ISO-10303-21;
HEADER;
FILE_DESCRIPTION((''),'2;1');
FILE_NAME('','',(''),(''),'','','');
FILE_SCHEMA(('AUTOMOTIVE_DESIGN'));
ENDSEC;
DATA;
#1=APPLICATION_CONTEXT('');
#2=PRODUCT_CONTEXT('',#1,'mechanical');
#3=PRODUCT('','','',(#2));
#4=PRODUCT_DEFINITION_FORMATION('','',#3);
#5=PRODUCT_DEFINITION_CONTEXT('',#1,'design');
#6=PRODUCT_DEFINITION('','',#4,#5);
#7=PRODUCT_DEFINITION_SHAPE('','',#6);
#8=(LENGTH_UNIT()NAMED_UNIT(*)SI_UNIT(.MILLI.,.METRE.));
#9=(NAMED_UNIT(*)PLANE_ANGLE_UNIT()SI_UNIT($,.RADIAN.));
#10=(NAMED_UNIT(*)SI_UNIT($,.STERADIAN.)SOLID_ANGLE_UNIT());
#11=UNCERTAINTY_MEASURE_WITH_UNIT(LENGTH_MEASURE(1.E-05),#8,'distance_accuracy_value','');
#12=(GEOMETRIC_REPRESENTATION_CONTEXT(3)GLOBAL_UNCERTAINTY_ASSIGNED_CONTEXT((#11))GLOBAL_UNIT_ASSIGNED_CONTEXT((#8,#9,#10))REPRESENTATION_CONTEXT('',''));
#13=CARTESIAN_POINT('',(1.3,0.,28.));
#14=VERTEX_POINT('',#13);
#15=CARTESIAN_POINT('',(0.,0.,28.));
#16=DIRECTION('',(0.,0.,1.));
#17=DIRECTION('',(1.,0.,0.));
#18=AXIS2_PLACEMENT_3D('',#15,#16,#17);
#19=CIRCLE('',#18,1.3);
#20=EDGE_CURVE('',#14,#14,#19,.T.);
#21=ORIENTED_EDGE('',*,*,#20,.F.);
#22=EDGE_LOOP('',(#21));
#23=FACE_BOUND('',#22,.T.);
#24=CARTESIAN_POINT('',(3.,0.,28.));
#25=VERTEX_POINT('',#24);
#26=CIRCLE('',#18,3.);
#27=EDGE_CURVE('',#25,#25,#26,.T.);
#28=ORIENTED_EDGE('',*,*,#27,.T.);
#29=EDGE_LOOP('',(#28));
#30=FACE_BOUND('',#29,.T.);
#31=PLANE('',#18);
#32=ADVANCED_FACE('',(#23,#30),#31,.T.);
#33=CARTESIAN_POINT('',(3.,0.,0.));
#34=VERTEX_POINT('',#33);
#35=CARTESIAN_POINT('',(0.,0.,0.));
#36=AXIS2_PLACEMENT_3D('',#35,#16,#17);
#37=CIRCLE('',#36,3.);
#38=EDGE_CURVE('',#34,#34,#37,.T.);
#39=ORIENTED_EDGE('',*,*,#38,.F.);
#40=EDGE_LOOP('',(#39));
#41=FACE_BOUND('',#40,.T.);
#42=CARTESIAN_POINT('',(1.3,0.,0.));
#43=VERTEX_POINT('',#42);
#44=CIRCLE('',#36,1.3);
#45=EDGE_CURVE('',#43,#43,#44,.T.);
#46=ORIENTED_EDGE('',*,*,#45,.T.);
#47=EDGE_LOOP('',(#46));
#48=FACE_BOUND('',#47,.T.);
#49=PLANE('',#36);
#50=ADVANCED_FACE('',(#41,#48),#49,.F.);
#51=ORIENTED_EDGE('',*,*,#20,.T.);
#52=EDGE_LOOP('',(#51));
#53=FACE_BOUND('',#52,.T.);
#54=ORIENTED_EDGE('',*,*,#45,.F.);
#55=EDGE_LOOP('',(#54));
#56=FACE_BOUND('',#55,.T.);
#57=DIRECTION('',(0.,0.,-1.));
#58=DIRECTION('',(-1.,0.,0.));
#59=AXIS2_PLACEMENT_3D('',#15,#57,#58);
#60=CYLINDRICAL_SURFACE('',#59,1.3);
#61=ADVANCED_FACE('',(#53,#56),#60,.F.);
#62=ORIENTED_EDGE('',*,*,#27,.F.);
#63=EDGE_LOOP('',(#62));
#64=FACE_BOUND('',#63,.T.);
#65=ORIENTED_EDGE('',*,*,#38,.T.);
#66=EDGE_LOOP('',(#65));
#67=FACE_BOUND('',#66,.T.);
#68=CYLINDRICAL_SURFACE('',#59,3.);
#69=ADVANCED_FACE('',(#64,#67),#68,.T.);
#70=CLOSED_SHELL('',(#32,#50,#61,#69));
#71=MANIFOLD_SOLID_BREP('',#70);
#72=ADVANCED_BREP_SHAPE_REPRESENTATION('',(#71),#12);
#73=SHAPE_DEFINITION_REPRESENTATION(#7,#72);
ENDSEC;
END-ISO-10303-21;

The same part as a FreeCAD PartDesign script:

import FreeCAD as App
import Part
import Sketcher

doc = App.newDocument("Part")
params = doc.addObject("Spreadsheet::Sheet", "Params")
for row, (alias, value) in enumerate([
    ("sketch1_diameter", "6 mm"),
    ("sketch1_diameter2", "2.6 mm"),
    ("pad1_length", "28 mm"),
], start=1):
    params.set(f"A{row}", alias)
    params.set(f"B{row}", "=" + value)
    params.setAlias(f"B{row}", alias)

body = doc.addObject("PartDesign::Body", "Body")

sketch1 = body.newObject("Sketcher::SketchObject", "Sketch")
sketch1.AttachmentSupport = (doc.getObject("XY_Plane"), [""])
sketch1.MapMode = "FlatFace"
sketch1.addGeometry([
    Part.Circle(App.Vector(0, 0, 0), App.Vector(0, 0, 1), 3),
    Part.Circle(App.Vector(0, 0, 0), App.Vector(0, 0, 1), 1.3),
], False)
sketch1.addConstraint([
    Sketcher.Constraint("Coincident", 0, 3, -1, 1),
    Sketcher.Constraint("Coincident", 1, 3, -1, 1),
    Sketcher.Constraint("Diameter", 0, 6.0),
    Sketcher.Constraint("Diameter", 1, 2.6),
])
sketch1.setExpression("Constraints[2]", "Params.sketch1_diameter")
sketch1.setExpression("Constraints[3]", "Params.sketch1_diameter2")
pad1 = body.newObject("PartDesign::Pad", "Pad")
pad1.Profile = sketch1
pad1.setExpression("Length", "Params.pad1_length")

doc.recompute()
